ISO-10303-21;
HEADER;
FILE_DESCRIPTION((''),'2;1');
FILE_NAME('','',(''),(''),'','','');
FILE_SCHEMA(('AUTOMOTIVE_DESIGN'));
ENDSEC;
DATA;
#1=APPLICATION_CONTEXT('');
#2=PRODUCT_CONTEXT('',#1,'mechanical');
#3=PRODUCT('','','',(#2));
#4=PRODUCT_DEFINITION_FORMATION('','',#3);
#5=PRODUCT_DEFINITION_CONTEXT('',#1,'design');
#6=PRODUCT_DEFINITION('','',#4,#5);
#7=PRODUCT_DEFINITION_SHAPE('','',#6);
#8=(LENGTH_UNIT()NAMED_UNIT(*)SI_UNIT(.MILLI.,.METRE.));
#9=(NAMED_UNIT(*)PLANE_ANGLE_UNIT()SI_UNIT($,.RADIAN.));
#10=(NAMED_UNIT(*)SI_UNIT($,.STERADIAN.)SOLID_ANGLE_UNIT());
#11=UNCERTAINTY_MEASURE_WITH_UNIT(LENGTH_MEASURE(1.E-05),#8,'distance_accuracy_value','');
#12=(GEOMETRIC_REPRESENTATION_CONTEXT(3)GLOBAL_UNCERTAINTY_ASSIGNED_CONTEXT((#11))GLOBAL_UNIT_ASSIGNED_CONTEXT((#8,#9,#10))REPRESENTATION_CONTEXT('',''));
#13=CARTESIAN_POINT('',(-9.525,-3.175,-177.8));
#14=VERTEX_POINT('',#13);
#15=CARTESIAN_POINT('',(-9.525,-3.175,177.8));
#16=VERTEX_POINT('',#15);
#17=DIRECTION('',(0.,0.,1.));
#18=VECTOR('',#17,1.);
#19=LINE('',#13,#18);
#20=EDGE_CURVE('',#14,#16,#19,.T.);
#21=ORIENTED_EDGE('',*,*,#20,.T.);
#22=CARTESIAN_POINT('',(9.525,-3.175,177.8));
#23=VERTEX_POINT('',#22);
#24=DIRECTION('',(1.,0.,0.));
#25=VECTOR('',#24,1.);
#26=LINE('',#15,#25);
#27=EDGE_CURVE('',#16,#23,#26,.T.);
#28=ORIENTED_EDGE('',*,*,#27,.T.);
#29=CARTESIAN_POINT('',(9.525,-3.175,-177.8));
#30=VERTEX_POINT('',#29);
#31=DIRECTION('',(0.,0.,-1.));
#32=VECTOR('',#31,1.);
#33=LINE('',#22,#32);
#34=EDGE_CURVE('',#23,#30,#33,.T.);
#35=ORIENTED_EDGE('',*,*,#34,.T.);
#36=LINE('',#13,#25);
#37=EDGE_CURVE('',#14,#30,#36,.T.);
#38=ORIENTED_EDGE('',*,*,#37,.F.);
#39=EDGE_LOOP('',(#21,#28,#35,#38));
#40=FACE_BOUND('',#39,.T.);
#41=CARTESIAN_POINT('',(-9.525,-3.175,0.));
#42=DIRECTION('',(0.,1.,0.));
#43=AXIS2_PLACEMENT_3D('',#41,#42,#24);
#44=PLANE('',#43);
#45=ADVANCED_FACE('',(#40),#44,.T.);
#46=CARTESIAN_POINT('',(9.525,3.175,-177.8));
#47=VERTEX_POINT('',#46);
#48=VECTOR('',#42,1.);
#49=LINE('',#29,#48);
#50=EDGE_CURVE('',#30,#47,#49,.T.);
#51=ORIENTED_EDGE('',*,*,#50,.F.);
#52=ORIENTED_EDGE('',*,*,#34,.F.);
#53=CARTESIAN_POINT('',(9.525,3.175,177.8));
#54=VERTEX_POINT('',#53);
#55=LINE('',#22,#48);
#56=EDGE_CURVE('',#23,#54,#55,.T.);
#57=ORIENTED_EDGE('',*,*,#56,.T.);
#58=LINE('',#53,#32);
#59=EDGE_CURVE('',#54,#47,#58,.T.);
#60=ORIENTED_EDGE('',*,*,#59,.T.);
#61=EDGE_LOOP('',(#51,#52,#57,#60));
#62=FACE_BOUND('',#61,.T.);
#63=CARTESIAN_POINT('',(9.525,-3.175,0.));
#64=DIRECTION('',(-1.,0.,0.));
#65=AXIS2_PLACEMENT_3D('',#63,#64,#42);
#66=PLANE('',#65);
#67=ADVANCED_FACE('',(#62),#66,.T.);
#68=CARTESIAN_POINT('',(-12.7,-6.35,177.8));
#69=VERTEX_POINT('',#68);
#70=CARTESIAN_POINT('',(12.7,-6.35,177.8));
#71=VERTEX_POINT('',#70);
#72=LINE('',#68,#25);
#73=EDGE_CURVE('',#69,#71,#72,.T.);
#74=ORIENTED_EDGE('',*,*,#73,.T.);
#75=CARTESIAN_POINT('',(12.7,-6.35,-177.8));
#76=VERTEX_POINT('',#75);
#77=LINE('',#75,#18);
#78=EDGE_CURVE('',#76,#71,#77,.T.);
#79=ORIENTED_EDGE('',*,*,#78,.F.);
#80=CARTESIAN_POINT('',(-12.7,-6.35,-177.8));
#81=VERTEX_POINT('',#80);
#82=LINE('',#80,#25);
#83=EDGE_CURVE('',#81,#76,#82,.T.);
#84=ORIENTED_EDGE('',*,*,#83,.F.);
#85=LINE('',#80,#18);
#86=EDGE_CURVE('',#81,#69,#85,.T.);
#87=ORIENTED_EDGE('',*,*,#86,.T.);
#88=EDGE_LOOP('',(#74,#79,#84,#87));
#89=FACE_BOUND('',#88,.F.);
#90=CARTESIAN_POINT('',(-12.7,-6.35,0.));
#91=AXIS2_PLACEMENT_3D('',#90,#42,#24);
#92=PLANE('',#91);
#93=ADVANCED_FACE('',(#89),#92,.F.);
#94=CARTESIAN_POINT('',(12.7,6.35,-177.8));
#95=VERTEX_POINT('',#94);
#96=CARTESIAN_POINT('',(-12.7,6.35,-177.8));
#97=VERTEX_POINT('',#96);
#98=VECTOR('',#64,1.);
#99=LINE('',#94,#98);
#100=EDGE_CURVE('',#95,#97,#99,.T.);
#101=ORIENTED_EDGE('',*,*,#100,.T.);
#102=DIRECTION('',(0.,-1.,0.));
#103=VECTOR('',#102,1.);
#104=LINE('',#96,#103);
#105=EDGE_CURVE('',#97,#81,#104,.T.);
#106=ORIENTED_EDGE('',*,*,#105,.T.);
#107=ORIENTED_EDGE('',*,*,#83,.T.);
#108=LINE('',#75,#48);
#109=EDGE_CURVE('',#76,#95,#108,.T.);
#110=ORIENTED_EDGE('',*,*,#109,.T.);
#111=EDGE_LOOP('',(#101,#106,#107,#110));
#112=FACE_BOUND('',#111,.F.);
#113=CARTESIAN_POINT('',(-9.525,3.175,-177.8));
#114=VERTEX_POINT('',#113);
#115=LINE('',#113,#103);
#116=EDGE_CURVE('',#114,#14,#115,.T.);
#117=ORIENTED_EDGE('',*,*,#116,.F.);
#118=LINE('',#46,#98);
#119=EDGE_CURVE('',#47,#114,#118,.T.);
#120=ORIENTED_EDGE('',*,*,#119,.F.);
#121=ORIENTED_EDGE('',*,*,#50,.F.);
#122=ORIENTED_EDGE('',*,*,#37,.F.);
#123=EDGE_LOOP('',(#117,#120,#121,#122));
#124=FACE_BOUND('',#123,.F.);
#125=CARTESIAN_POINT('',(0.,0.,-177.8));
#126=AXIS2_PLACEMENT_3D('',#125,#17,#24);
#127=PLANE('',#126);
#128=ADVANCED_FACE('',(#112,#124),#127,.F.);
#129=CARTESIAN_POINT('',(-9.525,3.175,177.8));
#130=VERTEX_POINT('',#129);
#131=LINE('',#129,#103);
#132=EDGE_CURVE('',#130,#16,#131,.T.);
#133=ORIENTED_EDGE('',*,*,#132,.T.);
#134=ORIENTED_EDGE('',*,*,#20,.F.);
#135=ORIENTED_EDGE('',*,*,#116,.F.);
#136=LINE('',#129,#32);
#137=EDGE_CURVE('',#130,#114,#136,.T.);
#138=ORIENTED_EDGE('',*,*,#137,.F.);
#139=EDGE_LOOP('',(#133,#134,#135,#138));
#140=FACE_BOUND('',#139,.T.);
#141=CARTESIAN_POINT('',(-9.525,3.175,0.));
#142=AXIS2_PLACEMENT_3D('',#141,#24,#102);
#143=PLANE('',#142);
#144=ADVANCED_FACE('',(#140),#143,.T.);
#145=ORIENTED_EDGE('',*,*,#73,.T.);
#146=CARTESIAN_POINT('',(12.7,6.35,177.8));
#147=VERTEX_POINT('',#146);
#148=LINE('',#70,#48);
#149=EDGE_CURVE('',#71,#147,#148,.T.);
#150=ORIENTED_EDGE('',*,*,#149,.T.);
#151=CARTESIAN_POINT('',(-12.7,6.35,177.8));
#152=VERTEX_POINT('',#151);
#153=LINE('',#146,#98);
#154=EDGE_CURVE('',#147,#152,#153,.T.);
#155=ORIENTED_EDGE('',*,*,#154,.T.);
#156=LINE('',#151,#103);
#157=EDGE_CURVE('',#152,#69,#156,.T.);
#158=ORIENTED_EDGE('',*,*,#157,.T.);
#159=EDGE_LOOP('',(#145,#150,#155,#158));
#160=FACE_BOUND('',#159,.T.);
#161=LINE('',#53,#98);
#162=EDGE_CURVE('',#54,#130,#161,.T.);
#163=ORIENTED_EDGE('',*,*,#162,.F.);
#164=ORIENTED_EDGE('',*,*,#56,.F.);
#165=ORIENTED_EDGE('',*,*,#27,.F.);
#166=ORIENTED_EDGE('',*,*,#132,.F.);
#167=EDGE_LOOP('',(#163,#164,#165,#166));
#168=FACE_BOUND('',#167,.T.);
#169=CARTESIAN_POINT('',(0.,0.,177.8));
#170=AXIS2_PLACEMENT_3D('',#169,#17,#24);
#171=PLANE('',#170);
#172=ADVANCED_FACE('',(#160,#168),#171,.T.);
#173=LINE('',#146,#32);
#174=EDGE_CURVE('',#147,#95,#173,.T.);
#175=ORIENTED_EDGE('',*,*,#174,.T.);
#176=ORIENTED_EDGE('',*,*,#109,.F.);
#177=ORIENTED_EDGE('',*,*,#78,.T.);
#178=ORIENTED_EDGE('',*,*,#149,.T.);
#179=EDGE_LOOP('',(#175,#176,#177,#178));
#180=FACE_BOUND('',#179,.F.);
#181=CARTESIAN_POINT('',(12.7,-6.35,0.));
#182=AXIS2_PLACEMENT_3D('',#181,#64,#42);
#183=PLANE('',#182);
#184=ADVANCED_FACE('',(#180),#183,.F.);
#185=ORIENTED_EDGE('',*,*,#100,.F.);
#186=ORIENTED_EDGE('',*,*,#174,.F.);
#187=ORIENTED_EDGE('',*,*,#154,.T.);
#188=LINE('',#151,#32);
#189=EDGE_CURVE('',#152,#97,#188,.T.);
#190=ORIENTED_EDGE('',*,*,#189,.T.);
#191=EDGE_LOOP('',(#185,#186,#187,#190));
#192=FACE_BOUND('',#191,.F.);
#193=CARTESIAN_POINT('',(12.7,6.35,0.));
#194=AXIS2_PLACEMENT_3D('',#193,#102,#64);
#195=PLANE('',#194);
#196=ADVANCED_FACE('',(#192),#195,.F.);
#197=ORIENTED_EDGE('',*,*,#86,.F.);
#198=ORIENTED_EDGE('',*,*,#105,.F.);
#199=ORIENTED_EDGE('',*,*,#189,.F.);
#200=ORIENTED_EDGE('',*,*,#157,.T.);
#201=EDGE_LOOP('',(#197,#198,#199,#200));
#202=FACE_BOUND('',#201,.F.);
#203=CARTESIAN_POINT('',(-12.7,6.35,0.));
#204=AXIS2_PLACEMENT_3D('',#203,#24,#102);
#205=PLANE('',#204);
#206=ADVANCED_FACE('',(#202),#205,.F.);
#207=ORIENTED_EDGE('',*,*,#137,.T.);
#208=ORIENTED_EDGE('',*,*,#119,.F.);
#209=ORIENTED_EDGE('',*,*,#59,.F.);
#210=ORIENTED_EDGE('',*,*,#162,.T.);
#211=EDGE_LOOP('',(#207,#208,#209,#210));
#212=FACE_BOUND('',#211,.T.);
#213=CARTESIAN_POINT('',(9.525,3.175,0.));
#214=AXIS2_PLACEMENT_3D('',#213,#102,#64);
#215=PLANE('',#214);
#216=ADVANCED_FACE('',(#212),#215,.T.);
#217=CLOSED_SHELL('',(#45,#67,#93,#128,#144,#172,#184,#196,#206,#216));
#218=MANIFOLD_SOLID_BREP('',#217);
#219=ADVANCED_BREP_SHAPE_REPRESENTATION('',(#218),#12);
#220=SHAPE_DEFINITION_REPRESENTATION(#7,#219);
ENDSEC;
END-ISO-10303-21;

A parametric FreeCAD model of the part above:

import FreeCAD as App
import Part
import Sketcher

V = App.Vector
Q = App.Units.Quantity

doc = App.newDocument("Part")
body = doc.addObject("PartDesign::Body", "Body")

sketch1 = doc.addObject("Sketcher::SketchObject", "Sketch")
body.addObject(sketch1)
sketch1.AttachmentSupport = (doc.XY_Plane, [""])
sketch1.MapMode = "FlatFace"
sketch1.addGeometry(Part.LineSegment(V(-13, 6, 0), V(-13, -6, 0)), False)
sketch1.addGeometry(Part.LineSegment(V(-13, -6, 0), V(13, -6, 0)), False)
sketch1.addGeometry(Part.LineSegment(V(13, -6, 0), V(13, 6, 0)), False)
sketch1.addGeometry(Part.LineSegment(V(13, 6, 0), V(-13, 6, 0)), False)
sketch1.addGeometry(Part.LineSegment(V(10, -3, 0), V(-10, -3, 0)), False)
sketch1.addGeometry(Part.LineSegment(V(-10, -3, 0), V(-10, 3, 0)), False)
sketch1.addGeometry(Part.LineSegment(V(-10, 3, 0), V(10, 3, 0)), False)
sketch1.addGeometry(Part.LineSegment(V(10, 3, 0), V(10, -3, 0)), False)
sketch1.addConstraint(Sketcher.Constraint("Coincident", 0, 2, 1, 1))
sketch1.addConstraint(Sketcher.Constraint("Coincident", 1, 2, 2, 1))
sketch1.addConstraint(Sketcher.Constraint("Coincident", 2, 2, 3, 1))
sketch1.addConstraint(Sketcher.Constraint("Coincident", 3, 2, 0, 1))
sketch1.addConstraint(Sketcher.Constraint("Coincident", 4, 2, 5, 1))
sketch1.addConstraint(Sketcher.Constraint("Coincident", 5, 2, 6, 1))
sketch1.addConstraint(Sketcher.Constraint("Coincident", 6, 2, 7, 1))
sketch1.addConstraint(Sketcher.Constraint("Coincident", 7, 2, 4, 1))
sketch1.addConstraint(Sketcher.Constraint("Vertical", 0))
sketch1.addConstraint(Sketcher.Constraint("Horizontal", 1))
sketch1.addConstraint(Sketcher.Constraint("Vertical", 2))
sketch1.addConstraint(Sketcher.Constraint("Horizontal", 3))
sketch1.addConstraint(Sketcher.Constraint("Horizontal", 4))
sketch1.addConstraint(Sketcher.Constraint("Vertical", 5))
sketch1.addConstraint(Sketcher.Constraint("Horizontal", 6))
sketch1.addConstraint(Sketcher.Constraint("Vertical", 7))
sketch1.addConstraint(Sketcher.Constraint("Symmetric", 0, 2, 2, 2, -1, 1))
sketch1.addConstraint(Sketcher.Constraint("Symmetric", 4, 2, 6, 2, -1, 1))
sketch1.addConstraint(Sketcher.Constraint("DistanceX", 1, 1, 1, 2, Q("1 in")))
sketch1.addConstraint(Sketcher.Constraint("DistanceY", 0, 2, 0, 1, Q("0.5 in")))
sketch1.addConstraint(Sketcher.Constraint("DistanceY", 4, 2, -1, 1, Q("0.125 in")))
sketch1.addConstraint(Sketcher.Constraint("DistanceX", 0, 2, 4, 2, Q("0.125 in")))
pad1 = doc.addObject("PartDesign::Pad", "Pad")
body.addObject(pad1)
pad1.Profile = sketch1
pad1.Length = Q("14 in")
pad1.Midplane = True

doc.recompute()
